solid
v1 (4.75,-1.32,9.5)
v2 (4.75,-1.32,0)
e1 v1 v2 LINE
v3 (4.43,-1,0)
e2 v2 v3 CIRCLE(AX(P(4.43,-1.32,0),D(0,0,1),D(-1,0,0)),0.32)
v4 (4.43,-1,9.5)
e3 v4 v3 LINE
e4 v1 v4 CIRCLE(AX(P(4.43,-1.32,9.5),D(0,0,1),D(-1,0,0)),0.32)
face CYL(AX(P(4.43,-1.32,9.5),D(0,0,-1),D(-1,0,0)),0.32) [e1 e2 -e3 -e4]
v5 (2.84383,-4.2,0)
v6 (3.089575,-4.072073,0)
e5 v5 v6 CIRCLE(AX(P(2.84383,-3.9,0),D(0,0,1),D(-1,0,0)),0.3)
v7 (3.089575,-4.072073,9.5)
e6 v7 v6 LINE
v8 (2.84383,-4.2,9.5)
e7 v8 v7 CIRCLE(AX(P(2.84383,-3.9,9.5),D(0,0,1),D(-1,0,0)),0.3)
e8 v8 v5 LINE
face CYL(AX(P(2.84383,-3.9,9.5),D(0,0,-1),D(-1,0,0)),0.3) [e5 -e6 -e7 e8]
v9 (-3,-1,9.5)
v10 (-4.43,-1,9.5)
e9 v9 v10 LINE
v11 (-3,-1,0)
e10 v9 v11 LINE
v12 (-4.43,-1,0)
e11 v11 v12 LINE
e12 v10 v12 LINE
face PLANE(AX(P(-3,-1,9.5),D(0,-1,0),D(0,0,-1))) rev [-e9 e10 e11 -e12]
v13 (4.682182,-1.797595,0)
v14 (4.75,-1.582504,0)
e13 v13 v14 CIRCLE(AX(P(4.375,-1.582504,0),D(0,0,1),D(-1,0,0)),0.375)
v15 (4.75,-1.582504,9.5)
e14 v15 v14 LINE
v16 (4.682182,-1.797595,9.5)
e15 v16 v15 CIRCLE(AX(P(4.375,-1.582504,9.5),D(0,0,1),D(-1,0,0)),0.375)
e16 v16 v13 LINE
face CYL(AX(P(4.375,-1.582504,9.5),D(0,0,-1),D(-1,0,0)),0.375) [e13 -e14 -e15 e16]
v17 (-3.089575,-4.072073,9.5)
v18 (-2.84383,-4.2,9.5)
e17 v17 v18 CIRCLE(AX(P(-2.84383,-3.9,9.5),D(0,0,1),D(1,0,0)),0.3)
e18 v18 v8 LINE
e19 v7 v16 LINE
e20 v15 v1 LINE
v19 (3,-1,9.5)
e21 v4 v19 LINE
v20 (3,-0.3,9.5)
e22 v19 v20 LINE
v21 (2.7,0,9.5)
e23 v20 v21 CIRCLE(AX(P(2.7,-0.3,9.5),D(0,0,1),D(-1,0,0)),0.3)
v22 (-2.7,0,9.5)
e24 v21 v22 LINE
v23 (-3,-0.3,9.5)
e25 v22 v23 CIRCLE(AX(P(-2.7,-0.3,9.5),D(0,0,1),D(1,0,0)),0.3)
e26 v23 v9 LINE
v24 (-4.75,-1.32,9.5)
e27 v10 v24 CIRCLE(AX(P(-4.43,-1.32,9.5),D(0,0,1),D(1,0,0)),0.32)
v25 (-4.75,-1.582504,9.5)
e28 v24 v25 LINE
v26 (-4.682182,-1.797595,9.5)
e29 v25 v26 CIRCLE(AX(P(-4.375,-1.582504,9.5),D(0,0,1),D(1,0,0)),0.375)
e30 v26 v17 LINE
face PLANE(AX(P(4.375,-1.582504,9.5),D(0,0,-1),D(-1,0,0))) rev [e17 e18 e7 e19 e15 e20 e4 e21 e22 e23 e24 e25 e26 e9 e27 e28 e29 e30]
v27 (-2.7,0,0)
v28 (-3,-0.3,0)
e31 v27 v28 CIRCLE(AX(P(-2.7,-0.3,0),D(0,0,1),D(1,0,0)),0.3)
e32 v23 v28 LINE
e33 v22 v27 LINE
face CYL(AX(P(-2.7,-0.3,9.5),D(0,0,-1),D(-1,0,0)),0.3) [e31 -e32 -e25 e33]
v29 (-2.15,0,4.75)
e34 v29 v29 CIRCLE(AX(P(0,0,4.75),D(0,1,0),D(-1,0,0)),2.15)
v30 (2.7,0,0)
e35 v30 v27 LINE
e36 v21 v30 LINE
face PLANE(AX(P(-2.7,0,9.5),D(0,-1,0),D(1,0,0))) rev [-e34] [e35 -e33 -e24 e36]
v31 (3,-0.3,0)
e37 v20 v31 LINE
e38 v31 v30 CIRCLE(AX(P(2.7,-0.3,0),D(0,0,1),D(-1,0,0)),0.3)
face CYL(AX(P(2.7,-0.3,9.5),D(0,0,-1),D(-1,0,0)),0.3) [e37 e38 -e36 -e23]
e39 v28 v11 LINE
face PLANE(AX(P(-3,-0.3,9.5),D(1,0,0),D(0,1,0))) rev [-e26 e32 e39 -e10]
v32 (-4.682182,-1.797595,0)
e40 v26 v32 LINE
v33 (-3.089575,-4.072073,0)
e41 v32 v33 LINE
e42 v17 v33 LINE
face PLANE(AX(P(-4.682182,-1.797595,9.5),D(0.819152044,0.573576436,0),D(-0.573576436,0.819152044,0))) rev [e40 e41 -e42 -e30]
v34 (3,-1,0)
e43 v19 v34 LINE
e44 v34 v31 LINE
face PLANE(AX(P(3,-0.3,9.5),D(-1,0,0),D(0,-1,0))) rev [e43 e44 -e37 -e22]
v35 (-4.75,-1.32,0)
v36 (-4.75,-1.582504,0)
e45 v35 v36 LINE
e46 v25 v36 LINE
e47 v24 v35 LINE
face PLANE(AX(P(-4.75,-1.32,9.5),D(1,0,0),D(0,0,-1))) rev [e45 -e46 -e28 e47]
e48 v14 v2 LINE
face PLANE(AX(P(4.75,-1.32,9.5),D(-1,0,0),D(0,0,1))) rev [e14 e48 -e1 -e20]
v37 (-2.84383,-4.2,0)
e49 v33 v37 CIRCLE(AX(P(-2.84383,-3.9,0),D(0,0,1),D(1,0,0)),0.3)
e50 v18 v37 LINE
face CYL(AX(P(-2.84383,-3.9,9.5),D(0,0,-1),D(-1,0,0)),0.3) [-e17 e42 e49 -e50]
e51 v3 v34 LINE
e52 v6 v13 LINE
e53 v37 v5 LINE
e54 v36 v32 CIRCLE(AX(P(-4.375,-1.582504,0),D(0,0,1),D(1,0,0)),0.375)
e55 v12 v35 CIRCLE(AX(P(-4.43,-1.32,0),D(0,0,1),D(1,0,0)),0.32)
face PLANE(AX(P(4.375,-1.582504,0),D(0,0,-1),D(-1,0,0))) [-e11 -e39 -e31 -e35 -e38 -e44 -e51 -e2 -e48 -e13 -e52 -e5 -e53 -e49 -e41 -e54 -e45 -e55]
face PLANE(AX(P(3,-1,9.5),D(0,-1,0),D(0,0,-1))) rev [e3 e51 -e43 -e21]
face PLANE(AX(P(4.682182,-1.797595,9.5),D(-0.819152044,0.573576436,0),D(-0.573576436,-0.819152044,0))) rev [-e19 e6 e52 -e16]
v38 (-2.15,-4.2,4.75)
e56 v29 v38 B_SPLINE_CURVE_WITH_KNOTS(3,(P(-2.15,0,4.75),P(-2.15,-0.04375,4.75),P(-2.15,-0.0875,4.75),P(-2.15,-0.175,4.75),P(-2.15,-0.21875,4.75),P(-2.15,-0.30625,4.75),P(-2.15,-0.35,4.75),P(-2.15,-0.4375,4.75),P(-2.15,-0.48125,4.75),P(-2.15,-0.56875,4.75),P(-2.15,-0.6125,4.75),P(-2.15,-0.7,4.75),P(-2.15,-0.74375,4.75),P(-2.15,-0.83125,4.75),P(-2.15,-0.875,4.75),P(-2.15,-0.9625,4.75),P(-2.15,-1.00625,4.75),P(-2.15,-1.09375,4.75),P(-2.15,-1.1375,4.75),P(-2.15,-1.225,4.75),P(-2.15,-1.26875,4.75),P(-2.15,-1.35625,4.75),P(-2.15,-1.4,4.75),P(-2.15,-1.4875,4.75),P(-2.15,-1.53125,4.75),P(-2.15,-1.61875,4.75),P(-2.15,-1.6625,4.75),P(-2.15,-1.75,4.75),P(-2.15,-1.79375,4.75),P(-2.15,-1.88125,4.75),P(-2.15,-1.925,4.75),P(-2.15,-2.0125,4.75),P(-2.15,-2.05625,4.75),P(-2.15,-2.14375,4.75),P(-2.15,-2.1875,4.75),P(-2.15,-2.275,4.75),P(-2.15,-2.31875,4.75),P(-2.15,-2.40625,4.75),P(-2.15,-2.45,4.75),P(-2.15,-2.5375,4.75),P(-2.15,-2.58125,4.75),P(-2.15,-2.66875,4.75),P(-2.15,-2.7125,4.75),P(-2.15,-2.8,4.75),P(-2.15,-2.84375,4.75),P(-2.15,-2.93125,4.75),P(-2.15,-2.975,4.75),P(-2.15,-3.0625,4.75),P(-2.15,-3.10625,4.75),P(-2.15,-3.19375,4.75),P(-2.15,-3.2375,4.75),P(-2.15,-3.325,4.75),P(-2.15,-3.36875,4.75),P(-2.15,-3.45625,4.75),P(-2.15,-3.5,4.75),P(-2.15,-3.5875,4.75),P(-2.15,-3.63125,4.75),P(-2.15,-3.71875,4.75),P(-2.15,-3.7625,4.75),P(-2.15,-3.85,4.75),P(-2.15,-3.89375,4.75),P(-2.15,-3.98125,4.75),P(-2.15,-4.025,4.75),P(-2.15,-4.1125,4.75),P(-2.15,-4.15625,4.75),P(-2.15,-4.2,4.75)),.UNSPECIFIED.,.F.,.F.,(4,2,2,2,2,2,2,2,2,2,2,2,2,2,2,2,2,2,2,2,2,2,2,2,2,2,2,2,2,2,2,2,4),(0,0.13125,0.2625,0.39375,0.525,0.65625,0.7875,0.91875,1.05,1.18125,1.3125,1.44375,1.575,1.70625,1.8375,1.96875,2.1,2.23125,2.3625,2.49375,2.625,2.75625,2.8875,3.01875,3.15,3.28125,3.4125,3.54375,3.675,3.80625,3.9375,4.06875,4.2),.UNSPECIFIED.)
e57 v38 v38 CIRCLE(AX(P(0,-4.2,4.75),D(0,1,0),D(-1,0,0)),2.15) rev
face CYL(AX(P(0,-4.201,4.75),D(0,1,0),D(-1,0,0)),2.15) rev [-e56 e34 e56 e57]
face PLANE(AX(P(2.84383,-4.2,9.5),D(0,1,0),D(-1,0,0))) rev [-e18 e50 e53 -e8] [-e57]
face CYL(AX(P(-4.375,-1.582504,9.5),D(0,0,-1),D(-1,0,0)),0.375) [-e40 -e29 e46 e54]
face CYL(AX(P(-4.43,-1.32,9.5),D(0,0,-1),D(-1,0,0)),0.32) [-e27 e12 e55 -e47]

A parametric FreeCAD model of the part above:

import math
import FreeCAD as App
import Part
import Sketcher

V = App.Vector
Q = App.Units.Quantity

doc = App.newDocument("Part")
body = doc.addObject("PartDesign::Body", "Body")

# Sketch on XY plane
sketch1 = doc.addObject("Sketcher::SketchObject", "Sketch")
body.addObject(sketch1)
sketch1.AttachmentSupport = (doc.XY_Plane, [""])
sketch1.MapMode = "FlatFace"
sketch1.addGeometry([
    Part.LineSegment(V(2.7, 0, 0), V(-2.7, 0, 0)),  # 0
    Part.ArcOfCircle(Part.Circle(V(-2.7, -0.3, 0), V(0, 0, 1), 0.3), math.radians(90), math.radians(180)),  # 1
    Part.LineSegment(V(-3, -0.3, 0), V(-3, -1, 0)),  # 2
    Part.LineSegment(V(-3, -1, 0), V(-4.43, -1, 0)),  # 3
    Part.ArcOfCircle(Part.Circle(V(-4.43, -1.32, 0), V(0, 0, 1), 0.32), math.radians(90), math.radians(180)),  # 4
    Part.LineSegment(V(-4.75, -1.32, 0), V(-4.75, -1.582504, 0)),  # 5
    Part.ArcOfCircle(Part.Circle(V(-4.375, -1.582504, 0), V(0, 0, 1), 0.375), math.radians(180), math.radians(215)),  # 6
    Part.LineSegment(V(-4.682182, -1.797595, 0), V(-3.089575, -4.072073, 0)),  # 7
    Part.ArcOfCircle(Part.Circle(V(-2.84383, -3.9, 0), V(0, 0, 1), 0.3), math.radians(-145), math.radians(-90)),  # 8
    Part.LineSegment(V(-2.84383, -4.2, 0), V(2.84383, -4.2, 0)),  # 9
    Part.ArcOfCircle(Part.Circle(V(2.84383, -3.9, 0), V(0, 0, 1), 0.3), math.radians(-90), math.radians(-35)),  # 10
    Part.LineSegment(V(3.089575, -4.072073, 0), V(4.682182, -1.797595, 0)),  # 11
    Part.ArcOfCircle(Part.Circle(V(4.375, -1.582504, 0), V(0, 0, 1), 0.375), math.radians(-35), math.radians(0)),  # 12
    Part.LineSegment(V(4.75, -1.582504, 0), V(4.75, -1.32, 0)),  # 13
    Part.ArcOfCircle(Part.Circle(V(4.43, -1.32, 0), V(0, 0, 1), 0.32), math.radians(0), math.radians(90)),  # 14
    Part.LineSegment(V(4.43, -1, 0), V(3, -1, 0)),  # 15
    Part.LineSegment(V(3, -1, 0), V(3, -0.3, 0)),  # 16
    Part.ArcOfCircle(Part.Circle(V(2.7, -0.3, 0), V(0, 0, 1), 0.3), math.radians(0), math.radians(90)),  # 17
], False)
sketch1.addConstraint([
    Sketcher.Constraint("Tangent", 0, 2, 1, 1),
    Sketcher.Constraint("Tangent", 1, 2, 2, 1),
    Sketcher.Constraint("Coincident", 2, 2, 3, 1),
    Sketcher.Constraint("Tangent", 3, 2, 4, 1),
    Sketcher.Constraint("Tangent", 4, 2, 5, 1),
    Sketcher.Constraint("Tangent", 5, 2, 6, 1),
    Sketcher.Constraint("Tangent", 6, 2, 7, 1),
    Sketcher.Constraint("Tangent", 7, 2, 8, 1),
    Sketcher.Constraint("Tangent", 8, 2, 9, 1),
    Sketcher.Constraint("Tangent", 9, 2, 10, 1),
    Sketcher.Constraint("Tangent", 10, 2, 11, 1),
    Sketcher.Constraint("Tangent", 11, 2, 12, 1),
    Sketcher.Constraint("Tangent", 12, 2, 13, 1),
    Sketcher.Constraint("Tangent", 13, 2, 14, 1),
    Sketcher.Constraint("Tangent", 14, 2, 15, 1),
    Sketcher.Constraint("Coincident", 15, 2, 16, 1),
    Sketcher.Constraint("Tangent", 16, 2, 17, 1),
    Sketcher.Constraint("Tangent", 17, 2, 0, 1),
    Sketcher.Constraint("Horizontal", 0),
    Sketcher.Constraint("Vertical", 2),
    Sketcher.Constraint("Horizontal", 3),
    Sketcher.Constraint("Vertical", 5),
    Sketcher.Constraint("Horizontal", 9),
    Sketcher.Constraint("Vertical", 13),
    Sketcher.Constraint("Horizontal", 15),
    Sketcher.Constraint("Vertical", 16),
    Sketcher.Constraint("Equal", 1, 8),
    Sketcher.Constraint("Equal", 8, 10),
    Sketcher.Constraint("Equal", 6, 12),
    Sketcher.Constraint("Equal", 4, 14),
    Sketcher.Constraint("Equal", 10, 17),
    Sketcher.Constraint("Symmetric", 0, 2, 17, 2, -1, 1),
    Sketcher.Constraint("Symmetric", 6, 3, 12, 3, -2),
    Sketcher.Constraint("Horizontal", 4, 3, 14, 3),
    Sketcher.Constraint("Horizontal", 7, 2, 10, 2),
    Sketcher.Constraint("Radius", 1, 0.3),
    Sketcher.Constraint("Angle", 7, Q("-55 deg")),
    Sketcher.Constraint("Radius", 4, 0.32),
    Sketcher.Constraint("DistanceX", 0, 2, 0, 1, 5.4),
    Sketcher.Constraint("DistanceY", 2, 2, 2, 1, 0.7),
    Sketcher.Constraint("Radius", 6, 0.375),
    Sketcher.Constraint("DistanceX", 3, 2, 3, 1, 1.43),
    Sketcher.Constraint("DistanceY", 8, 3, -1, 1, 3.9),
    Sketcher.Constraint("DistanceX", 9, 1, 9, 2, 5.68766),
])
pad1 = doc.addObject("PartDesign::Pad", "Pad")
body.addObject(pad1)
pad1.Profile = sketch1
pad1.Length = 9.5

# Sketch on XZ plane
sketch2 = doc.addObject("Sketcher::SketchObject", "Sketch001")
body.addObject(sketch2)
sketch2.AttachmentSupport = (doc.XZ_Plane, [""])
sketch2.MapMode = "FlatFace"
sketch2.addGeometry(Part.Circle(V(0, 4.75, 0), V(0, 0, 1), 2.15), False)
sketch2.addConstraint([
    Sketcher.Constraint("PointOnObject", 0, 3, -2),
    Sketcher.Constraint("Diameter", 0, 4.3),
    Sketcher.Constraint("DistanceY", -1, 1, 0, 3, 4.75),
])
pocket1 = doc.addObject("PartDesign::Pocket", "Pocket")
body.addObject(pocket1)
pocket1.Profile = sketch2
pocket1.Type = "UpToFirst"
pocket1.Reversed = True

doc.recompute()
